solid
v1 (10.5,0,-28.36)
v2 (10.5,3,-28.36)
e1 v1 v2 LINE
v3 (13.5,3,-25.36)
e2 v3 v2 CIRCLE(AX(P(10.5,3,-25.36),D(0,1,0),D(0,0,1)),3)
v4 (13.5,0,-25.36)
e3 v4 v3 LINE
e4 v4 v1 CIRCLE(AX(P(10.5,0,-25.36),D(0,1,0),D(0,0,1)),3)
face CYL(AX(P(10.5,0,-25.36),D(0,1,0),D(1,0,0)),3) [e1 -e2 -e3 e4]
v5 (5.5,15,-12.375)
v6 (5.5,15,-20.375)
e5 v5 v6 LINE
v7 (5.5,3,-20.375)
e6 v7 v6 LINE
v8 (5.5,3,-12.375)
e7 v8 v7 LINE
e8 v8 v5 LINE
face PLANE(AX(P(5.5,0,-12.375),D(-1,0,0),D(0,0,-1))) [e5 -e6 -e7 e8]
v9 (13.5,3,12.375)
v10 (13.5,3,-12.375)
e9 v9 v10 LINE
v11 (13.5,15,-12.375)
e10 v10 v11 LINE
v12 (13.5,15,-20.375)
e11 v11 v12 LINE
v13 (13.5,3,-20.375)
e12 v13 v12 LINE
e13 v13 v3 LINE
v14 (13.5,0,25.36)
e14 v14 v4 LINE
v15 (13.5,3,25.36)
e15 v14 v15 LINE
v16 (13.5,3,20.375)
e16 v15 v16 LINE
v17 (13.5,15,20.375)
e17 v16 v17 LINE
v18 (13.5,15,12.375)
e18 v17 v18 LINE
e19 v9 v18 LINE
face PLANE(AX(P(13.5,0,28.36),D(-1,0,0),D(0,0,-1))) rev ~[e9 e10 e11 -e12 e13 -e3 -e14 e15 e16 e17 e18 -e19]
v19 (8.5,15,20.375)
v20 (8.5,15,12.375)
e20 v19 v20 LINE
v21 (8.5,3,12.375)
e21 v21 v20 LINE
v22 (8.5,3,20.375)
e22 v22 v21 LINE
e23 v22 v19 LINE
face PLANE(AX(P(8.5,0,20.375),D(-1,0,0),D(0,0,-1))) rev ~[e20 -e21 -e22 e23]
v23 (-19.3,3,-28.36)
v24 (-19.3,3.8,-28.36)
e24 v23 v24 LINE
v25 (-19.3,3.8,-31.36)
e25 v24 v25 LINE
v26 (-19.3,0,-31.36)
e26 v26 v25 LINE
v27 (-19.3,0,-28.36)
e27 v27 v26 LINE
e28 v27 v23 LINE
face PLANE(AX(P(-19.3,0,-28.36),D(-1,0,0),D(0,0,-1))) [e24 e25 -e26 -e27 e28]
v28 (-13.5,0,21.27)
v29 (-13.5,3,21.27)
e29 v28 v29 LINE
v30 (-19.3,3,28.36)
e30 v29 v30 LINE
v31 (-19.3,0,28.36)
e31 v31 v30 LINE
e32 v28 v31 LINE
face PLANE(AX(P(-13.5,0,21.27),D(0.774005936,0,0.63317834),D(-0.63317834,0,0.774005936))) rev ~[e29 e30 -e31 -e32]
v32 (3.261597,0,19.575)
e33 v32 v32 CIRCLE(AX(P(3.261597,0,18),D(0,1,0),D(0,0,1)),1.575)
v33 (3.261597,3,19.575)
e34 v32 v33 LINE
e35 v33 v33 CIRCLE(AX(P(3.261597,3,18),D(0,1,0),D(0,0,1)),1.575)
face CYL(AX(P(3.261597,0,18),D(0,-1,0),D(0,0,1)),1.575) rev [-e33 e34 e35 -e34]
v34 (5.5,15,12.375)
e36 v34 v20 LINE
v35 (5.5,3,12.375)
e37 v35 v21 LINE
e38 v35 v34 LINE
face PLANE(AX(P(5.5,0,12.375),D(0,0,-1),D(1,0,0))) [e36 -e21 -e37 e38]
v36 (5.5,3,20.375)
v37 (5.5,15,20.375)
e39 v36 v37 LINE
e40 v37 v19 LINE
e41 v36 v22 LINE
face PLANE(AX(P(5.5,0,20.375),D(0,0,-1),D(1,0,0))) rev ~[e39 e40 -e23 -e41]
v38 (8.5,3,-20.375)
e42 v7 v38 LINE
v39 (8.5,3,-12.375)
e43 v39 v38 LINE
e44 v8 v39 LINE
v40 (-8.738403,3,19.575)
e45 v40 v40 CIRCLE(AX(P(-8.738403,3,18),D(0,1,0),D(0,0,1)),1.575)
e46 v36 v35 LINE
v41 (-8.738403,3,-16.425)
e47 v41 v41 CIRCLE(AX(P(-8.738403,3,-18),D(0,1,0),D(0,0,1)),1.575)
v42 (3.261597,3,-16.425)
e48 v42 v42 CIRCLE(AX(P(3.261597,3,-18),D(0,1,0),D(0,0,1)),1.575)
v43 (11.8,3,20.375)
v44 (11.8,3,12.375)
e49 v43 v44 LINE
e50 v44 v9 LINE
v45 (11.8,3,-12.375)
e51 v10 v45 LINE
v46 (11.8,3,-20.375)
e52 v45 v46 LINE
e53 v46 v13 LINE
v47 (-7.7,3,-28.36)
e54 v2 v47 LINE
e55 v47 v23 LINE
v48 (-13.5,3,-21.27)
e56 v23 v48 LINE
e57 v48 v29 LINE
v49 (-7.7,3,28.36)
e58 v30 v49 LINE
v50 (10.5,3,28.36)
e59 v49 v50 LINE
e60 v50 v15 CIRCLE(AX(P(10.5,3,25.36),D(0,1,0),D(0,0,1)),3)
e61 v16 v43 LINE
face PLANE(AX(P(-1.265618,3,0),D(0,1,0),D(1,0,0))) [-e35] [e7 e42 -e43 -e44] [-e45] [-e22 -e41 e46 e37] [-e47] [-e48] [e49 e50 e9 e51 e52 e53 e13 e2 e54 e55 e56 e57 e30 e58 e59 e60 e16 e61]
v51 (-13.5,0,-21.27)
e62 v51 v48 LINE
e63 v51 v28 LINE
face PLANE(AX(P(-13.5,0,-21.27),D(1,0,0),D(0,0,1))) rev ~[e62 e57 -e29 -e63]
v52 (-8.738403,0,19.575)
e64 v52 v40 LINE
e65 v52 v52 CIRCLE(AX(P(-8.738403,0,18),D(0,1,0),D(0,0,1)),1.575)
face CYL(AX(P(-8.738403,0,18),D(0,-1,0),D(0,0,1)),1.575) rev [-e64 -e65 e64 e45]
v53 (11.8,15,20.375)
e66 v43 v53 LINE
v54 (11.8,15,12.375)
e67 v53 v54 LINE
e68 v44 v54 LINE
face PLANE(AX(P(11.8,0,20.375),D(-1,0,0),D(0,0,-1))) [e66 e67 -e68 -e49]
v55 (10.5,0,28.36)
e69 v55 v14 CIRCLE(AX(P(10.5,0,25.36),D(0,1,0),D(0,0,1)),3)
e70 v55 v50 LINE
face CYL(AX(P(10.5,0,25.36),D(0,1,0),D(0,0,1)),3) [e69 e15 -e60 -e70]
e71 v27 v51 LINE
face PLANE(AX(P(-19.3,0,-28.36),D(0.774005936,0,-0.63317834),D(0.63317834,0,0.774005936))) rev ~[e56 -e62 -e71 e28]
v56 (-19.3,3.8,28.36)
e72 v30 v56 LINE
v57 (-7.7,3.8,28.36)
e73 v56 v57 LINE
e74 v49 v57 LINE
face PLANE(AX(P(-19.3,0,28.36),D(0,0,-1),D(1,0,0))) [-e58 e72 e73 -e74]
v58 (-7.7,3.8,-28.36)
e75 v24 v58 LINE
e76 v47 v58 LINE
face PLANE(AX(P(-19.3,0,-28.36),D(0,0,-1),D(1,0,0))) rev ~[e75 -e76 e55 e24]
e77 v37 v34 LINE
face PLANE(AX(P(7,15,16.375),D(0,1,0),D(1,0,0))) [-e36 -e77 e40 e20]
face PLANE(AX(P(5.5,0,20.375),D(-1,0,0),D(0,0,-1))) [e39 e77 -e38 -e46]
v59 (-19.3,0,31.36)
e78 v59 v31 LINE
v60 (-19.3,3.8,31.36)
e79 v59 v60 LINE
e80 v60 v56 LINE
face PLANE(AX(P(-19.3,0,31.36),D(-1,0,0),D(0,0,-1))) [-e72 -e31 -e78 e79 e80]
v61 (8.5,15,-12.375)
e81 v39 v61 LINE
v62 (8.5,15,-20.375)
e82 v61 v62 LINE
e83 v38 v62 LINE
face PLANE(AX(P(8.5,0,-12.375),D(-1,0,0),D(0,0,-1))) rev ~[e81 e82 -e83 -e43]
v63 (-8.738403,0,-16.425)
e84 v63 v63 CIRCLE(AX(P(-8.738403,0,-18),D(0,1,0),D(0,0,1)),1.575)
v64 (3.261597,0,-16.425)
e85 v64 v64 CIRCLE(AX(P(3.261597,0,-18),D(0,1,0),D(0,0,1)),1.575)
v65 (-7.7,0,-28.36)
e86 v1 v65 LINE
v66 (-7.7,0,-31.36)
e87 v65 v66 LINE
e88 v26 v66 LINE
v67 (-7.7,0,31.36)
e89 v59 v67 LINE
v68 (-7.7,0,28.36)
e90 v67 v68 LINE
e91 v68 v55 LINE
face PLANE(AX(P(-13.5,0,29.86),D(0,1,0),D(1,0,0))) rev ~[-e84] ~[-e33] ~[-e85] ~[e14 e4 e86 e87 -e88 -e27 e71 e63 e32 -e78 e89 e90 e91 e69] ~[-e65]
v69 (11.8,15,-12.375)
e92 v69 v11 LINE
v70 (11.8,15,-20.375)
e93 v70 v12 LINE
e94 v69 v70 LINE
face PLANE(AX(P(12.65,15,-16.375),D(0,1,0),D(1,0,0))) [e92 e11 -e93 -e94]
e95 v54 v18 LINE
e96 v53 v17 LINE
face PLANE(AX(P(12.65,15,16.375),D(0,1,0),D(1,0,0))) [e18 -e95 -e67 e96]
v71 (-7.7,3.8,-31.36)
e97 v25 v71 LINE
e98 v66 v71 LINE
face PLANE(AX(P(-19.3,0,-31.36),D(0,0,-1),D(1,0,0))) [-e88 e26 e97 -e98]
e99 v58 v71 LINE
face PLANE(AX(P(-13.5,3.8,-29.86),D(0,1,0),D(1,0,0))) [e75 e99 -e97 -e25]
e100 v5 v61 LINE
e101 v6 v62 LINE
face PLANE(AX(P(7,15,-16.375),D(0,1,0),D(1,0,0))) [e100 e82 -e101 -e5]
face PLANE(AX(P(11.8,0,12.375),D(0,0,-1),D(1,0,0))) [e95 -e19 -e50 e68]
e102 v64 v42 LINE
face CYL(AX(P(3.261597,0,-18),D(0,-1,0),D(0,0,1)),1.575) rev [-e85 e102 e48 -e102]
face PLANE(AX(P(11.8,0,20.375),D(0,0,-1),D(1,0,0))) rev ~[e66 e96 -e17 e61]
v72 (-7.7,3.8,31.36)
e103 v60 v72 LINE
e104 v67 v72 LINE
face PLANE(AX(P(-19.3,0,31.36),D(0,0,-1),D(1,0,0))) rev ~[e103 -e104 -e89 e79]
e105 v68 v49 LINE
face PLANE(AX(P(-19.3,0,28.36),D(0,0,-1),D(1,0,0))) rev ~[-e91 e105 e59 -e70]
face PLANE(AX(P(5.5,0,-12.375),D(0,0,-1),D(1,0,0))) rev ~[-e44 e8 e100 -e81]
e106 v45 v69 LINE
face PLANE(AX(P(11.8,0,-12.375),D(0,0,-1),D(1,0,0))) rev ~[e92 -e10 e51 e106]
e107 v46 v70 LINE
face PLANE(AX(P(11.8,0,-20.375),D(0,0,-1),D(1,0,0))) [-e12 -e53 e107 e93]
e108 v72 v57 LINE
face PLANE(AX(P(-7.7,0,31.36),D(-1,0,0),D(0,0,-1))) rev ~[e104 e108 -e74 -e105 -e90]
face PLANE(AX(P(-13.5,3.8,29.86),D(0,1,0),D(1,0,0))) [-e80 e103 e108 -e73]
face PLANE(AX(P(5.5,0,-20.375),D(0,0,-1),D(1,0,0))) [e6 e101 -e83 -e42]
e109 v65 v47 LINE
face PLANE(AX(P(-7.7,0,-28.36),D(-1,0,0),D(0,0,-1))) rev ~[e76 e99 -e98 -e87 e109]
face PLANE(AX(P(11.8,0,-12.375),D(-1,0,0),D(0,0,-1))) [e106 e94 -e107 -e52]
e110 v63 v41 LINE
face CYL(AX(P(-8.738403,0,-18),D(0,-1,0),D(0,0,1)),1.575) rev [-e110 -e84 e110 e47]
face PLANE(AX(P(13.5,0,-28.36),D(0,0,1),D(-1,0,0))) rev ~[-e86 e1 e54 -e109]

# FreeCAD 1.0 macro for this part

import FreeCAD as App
import Part
import Sketcher

V = App.Vector


def edges_at(feature, points):
    """Names of the edges that pass closest to the given points."""
    edges = feature.Shape.Edges
    near = lambda p: min(range(len(edges)), key=lambda i: edges[i].distToShape(Part.Vertex(*p))[0])
    return sorted({f"Edge{near(p) + 1}" for p in points})

doc = App.newDocument("Part")
body = doc.addObject("PartDesign::Body", "Body")

# Sketch on XZ plane
sketch1 = body.newObject("Sketcher::SketchObject", "Sketch")
sketch1.AttachmentSupport = (doc.getObject("XZ_Plane"), [""])
sketch1.MapMode = "FlatFace"
sketch1.addGeometry(Part.LineSegment(V(-13.5, 21.27, 0), V(-19.3, 28.36, 0)), False)
sketch1.addGeometry(Part.LineSegment(V(-19.3, 28.36, 0), V(13.5, 28.36, 0)), False)
sketch1.addGeometry(Part.LineSegment(V(13.5, 28.36, 0), V(13.5, 20.375, 0)), False)
sketch1.addGeometry(Part.LineSegment(V(13.5, 20.375, 0), V(11.8, 20.375, 0)), False)
sketch1.addGeometry(Part.LineSegment(V(11.8, 20.375, 0), V(11.8, 12.375, 0)), False)
sketch1.addGeometry(Part.LineSegment(V(11.8, 12.375, 0), V(13.5, 12.375, 0)), False)
sketch1.addGeometry(Part.LineSegment(V(13.5, 12.375, 0), V(13.5, -12.375, 0)), False)
sketch1.addGeometry(Part.LineSegment(V(13.5, -12.375, 0), V(11.8, -12.375, 0)), False)
sketch1.addGeometry(Part.LineSegment(V(11.8, -12.375, 0), V(11.8, -20.375, 0)), False)
sketch1.addGeometry(Part.LineSegment(V(11.8, -20.375, 0), V(13.5, -20.375, 0)), False)
sketch1.addGeometry(Part.LineSegment(V(13.5, -20.375, 0), V(13.5, -28.36, 0)), False)
sketch1.addGeometry(Part.LineSegment(V(13.5, -28.36, 0), V(-19.3, -28.36, 0)), False)
sketch1.addGeometry(Part.LineSegment(V(-19.3, -28.36, 0), V(-13.5, -21.27, 0)), False)
sketch1.addGeometry(Part.LineSegment(V(-13.5, -21.27, 0), V(-13.5, 21.27, 0)), False)
sketch1.addGeometry(Part.Circle(V(-8.738403, 18, 0), V(0, 0, 1), 1.575), False)
sketch1.addGeometry(Part.Circle(V(3.261597, 18, 0), V(0, 0, 1), 1.575), False)
sketch1.addGeometry(Part.LineSegment(V(8.5, 20.375, 0), V(5.5, 20.375, 0)), False)
sketch1.addGeometry(Part.LineSegment(V(5.5, 20.375, 0), V(5.5, 12.375, 0)), False)
sketch1.addGeometry(Part.LineSegment(V(5.5, 12.375, 0), V(8.5, 12.375, 0)), False)
sketch1.addGeometry(Part.LineSegment(V(8.5, 12.375, 0), V(8.5, 20.375, 0)), False)
sketch1.addGeometry(Part.Circle(V(-8.738403, -18, 0), V(0, 0, 1), 1.575), False)
sketch1.addGeometry(Part.Circle(V(3.261597, -18, 0), V(0, 0, 1), 1.575), False)
sketch1.addGeometry(Part.LineSegment(V(8.5, -12.375, 0), V(5.5, -12.375, 0)), False)
sketch1.addGeometry(Part.LineSegment(V(5.5, -12.375, 0), V(5.5, -20.375, 0)), False)
sketch1.addGeometry(Part.LineSegment(V(5.5, -20.375, 0), V(8.5, -20.375, 0)), False)
sketch1.addGeometry(Part.LineSegment(V(8.5, -20.375, 0), V(8.5, -12.375, 0)), False)
sketch1.addConstraint(Sketcher.Constraint("Coincident", 0, 2, 1, 1))
sketch1.addConstraint(Sketcher.Constraint("Coincident", 1, 2, 2, 1))
sketch1.addConstraint(Sketcher.Constraint("Coincident", 2, 2, 3, 1))
sketch1.addConstraint(Sketcher.Constraint("Coincident", 3, 2, 4, 1))
sketch1.addConstraint(Sketcher.Constraint("Coincident", 4, 2, 5, 1))
sketch1.addConstraint(Sketcher.Constraint("Coincident", 5, 2, 6, 1))
sketch1.addConstraint(Sketcher.Constraint("Coincident", 6, 2, 7, 1))
sketch1.addConstraint(Sketcher.Constraint("Coincident", 7, 2, 8, 1))
sketch1.addConstraint(Sketcher.Constraint("Coincident", 8, 2, 9, 1))
sketch1.addConstraint(Sketcher.Constraint("Coincident", 9, 2, 10, 1))
sketch1.addConstraint(Sketcher.Constraint("Coincident", 10, 2, 11, 1))
sketch1.addConstraint(Sketcher.Constraint("Coincident", 11, 2, 12, 1))
sketch1.addConstraint(Sketcher.Constraint("Coincident", 12, 2, 13, 1))
sketch1.addConstraint(Sketcher.Constraint("Coincident", 13, 2, 0, 1))
sketch1.addConstraint(Sketcher.Constraint("Coincident", 16, 2, 17, 1))
sketch1.addConstraint(Sketcher.Constraint("Coincident", 17, 2, 18, 1))
sketch1.addConstraint(Sketcher.Constraint("Coincident", 18, 2, 19, 1))
sketch1.addConstraint(Sketcher.Constraint("Coincident", 19, 2, 16, 1))
sketch1.addConstraint(Sketcher.Constraint("Coincident", 22, 2, 23, 1))
sketch1.addConstraint(Sketcher.Constraint("Coincident", 23, 2, 24, 1))
sketch1.addConstraint(Sketcher.Constraint("Coincident", 24, 2, 25, 1))
sketch1.addConstraint(Sketcher.Constraint("Coincident", 25, 2, 22, 1))
sketch1.addConstraint(Sketcher.Constraint("Horizontal", 1))
sketch1.addConstraint(Sketcher.Constraint("Vertical", 2))
sketch1.addConstraint(Sketcher.Constraint("Horizontal", 3))
sketch1.addConstraint(Sketcher.Constraint("Vertical", 4))
sketch1.addConstraint(Sketcher.Constraint("Horizontal", 5))
sketch1.addConstraint(Sketcher.Constraint("Vertical", 6))
sketch1.addConstraint(Sketcher.Constraint("Horizontal", 7))
sketch1.addConstraint(Sketcher.Constraint("Vertical", 8))
sketch1.addConstraint(Sketcher.Constraint("Horizontal", 9))
sketch1.addConstraint(Sketcher.Constraint("Vertical", 10))
sketch1.addConstraint(Sketcher.Constraint("Horizontal", 11))
sketch1.addConstraint(Sketcher.Constraint("Vertical", 13))
sketch1.addConstraint(Sketcher.Constraint("Horizontal", 16))
sketch1.addConstraint(Sketcher.Constraint("Vertical", 17))
sketch1.addConstraint(Sketcher.Constraint("Horizontal", 18))
sketch1.addConstraint(Sketcher.Constraint("Vertical", 19))
sketch1.addConstraint(Sketcher.Constraint("Horizontal", 22))
sketch1.addConstraint(Sketcher.Constraint("Vertical", 23))
sketch1.addConstraint(Sketcher.Constraint("Horizontal", 24))
sketch1.addConstraint(Sketcher.Constraint("Vertical", 25))
sketch1.addConstraint(Sketcher.Constraint("Equal", 14, 15))
sketch1.addConstraint(Sketcher.Constraint("Equal", 15, 20))
sketch1.addConstraint(Sketcher.Constraint("Equal", 20, 21))
sketch1.addConstraint(Sketcher.Constraint("Symmetric", 14, 3, 20, 3, -1))
sketch1.addConstraint(Sketcher.Constraint("Symmetric", 15, 3, 21, 3, -1))
sketch1.addConstraint(Sketcher.Constraint("Symmetric", 4, 2, 7, 2, -1))
sketch1.addConstraint(Sketcher.Constraint("Symmetric", 2, 2, 9, 2, -1))
sketch1.addConstraint(Sketcher.Constraint("Symmetric", 0, 2, 11, 2, -1))
sketch1.addConstraint(Sketcher.Constraint("Symmetric", 17, 2, 22, 2, -1))
sketch1.addConstraint(Sketcher.Constraint("Symmetric", 19, 2, 24, 2, -1))
sketch1.addConstraint(Sketcher.Constraint("Horizontal", 14, 3, 15, 3))
sketch1.addConstraint(Sketcher.Constraint("Horizontal", 3, 2, 16, 2))
sketch1.addConstraint(Sketcher.Constraint("Horizontal", 5, 2, 17, 2))
sketch1.addConstraint(Sketcher.Constraint("Vertical", 2, 2, 5, 2))
sketch1.addConstraint(Sketcher.Constraint("Equal", 0, 12))
sketch1.addConstraint(Sketcher.Constraint("Diameter", 14, 3.15))
sketch1.addConstraint(Sketcher.Constraint("DistanceX", 16, 2, 16, 1, 3.0))
sketch1.addConstraint(Sketcher.Constraint("DistanceY", 4, 2, 4, 1, 8.0))
sketch1.addConstraint(Sketcher.Constraint("DistanceX", 1, 1, 1, 2, 32.8))
sketch1.addConstraint(Sketcher.Constraint("DistanceX", 3, 2, 3, 1, 1.7))
sketch1.addConstraint(Sketcher.Constraint("DistanceY", -1, 1, 14, 3, 18.0))
sketch1.addConstraint(Sketcher.Constraint("DistanceX", 14, 3, 15, 3, 12.0))
sketch1.addConstraint(Sketcher.Constraint("DistanceX", 16, 2, 2, 2, 8.0))
sketch1.addConstraint(Sketcher.Constraint("DistanceY", 6, 2, 6, 1, 24.75))
sketch1.addConstraint(Sketcher.Constraint("DistanceY", 13, 1, 13, 2, 42.54))
sketch1.addConstraint(Sketcher.Constraint("DistanceX", 0, 2, -1, 1, 19.3))
sketch1.addConstraint(Sketcher.Constraint("DistanceX", 12, 2, -1, 1, 13.5))
sketch1.addConstraint(Sketcher.Constraint("DistanceY", 2, 2, 2, 1, 7.985))
sketch1.addConstraint(Sketcher.Constraint("DistanceX", 14, 3, -1, 1, 8.738403))
pad1 = body.newObject("PartDesign::Pad", "Pad")
pad1.Profile = sketch1
pad1.Length = 3
pad1.Reversed = True

# Sketch on XZ plane
sketch2 = body.newObject("Sketcher::SketchObject", "Sketch001")
sketch2.AttachmentSupport = (doc.getObject("XZ_Plane"), [""])
sketch2.MapMode = "FlatFace"
sketch2.addGeometry(Part.LineSegment(V(5.5, -20.375, 0), V(5.5, -12.375, 0)), False)
sketch2.addGeometry(Part.LineSegment(V(5.5, -12.375, 0), V(8.5, -12.375, 0)), False)
sketch2.addGeometry(Part.LineSegment(V(8.5, -12.375, 0), V(8.5, -20.375, 0)), False)
sketch2.addGeometry(Part.LineSegment(V(8.5, -20.375, 0), V(5.5, -20.375, 0)), False)
sketch2.addGeometry(Part.LineSegment(V(5.5, 12.375, 0), V(5.5, 20.375, 0)), False)
sketch2.addGeometry(Part.LineSegment(V(5.5, 20.375, 0), V(8.5, 20.375, 0)), False)
sketch2.addGeometry(Part.LineSegment(V(8.5, 20.375, 0), V(8.5, 12.375, 0)), False)
sketch2.addGeometry(Part.LineSegment(V(8.5, 12.375, 0), V(5.5, 12.375, 0)), False)
sketch2.addGeometry(Part.LineSegment(V(11.8, 12.375, 0), V(11.8, 20.375, 0)), False)
sketch2.addGeometry(Part.LineSegment(V(11.8, 20.375, 0), V(13.5, 20.375, 0)), False)
sketch2.addGeometry(Part.LineSegment(V(13.5, 20.375, 0), V(13.5, 12.375, 0)), False)
sketch2.addGeometry(Part.LineSegment(V(13.5, 12.375, 0), V(11.8, 12.375, 0)), False)
sketch2.addGeometry(Part.LineSegment(V(11.8, -20.375, 0), V(11.8, -12.375, 0)), False)
sketch2.addGeometry(Part.LineSegment(V(11.8, -12.375, 0), V(13.5, -12.375, 0)), False)
sketch2.addGeometry(Part.LineSegment(V(13.5, -12.375, 0), V(13.5, -20.375, 0)), False)
sketch2.addGeometry(Part.LineSegment(V(13.5, -20.375, 0), V(11.8, -20.375, 0)), False)
sketch2.addConstraint(Sketcher.Constraint("Coincident", 0, 2, 1, 1))
sketch2.addConstraint(Sketcher.Constraint("Coincident", 1, 2, 2, 1))
sketch2.addConstraint(Sketcher.Constraint("Coincident", 2, 2, 3, 1))
sketch2.addConstraint(Sketcher.Constraint("Coincident", 3, 2, 0, 1))
sketch2.addConstraint(Sketcher.Constraint("Coincident", 4, 2, 5, 1))
sketch2.addConstraint(Sketcher.Constraint("Coincident", 5, 2, 6, 1))
sketch2.addConstraint(Sketcher.Constraint("Coincident", 6, 2, 7, 1))
sketch2.addConstraint(Sketcher.Constraint("Coincident", 7, 2, 4, 1))
sketch2.addConstraint(Sketcher.Constraint("Coincident", 8, 2, 9, 1))
sketch2.addConstraint(Sketcher.Constraint("Coincident", 9, 2, 10, 1))
sketch2.addConstraint(Sketcher.Constraint("Coincident", 10, 2, 11, 1))
sketch2.addConstraint(Sketcher.Constraint("Coincident", 11, 2, 8, 1))
sketch2.addConstraint(Sketcher.Constraint("Coincident", 12, 2, 13, 1))
sketch2.addConstraint(Sketcher.Constraint("Coincident", 13, 2, 14, 1))
sketch2.addConstraint(Sketcher.Constraint("Coincident", 14, 2, 15, 1))
sketch2.addConstraint(Sketcher.Constraint("Coincident", 15, 2, 12, 1))
sketch2.addConstraint(Sketcher.Constraint("Vertical", 0))
sketch2.addConstraint(Sketcher.Constraint("Horizontal", 1))
sketch2.addConstraint(Sketcher.Constraint("Vertical", 2))
sketch2.addConstraint(Sketcher.Constraint("Horizontal", 3))
sketch2.addConstraint(Sketcher.Constraint("Vertical", 4))
sketch2.addConstraint(Sketcher.Constraint("Horizontal", 5))
sketch2.addConstraint(Sketcher.Constraint("Vertical", 6))
sketch2.addConstraint(Sketcher.Constraint("Horizontal", 7))
sketch2.addConstraint(Sketcher.Constraint("Vertical", 8))
sketch2.addConstraint(Sketcher.Constraint("Horizontal", 9))
sketch2.addConstraint(Sketcher.Constraint("Vertical", 10))
sketch2.addConstraint(Sketcher.Constraint("Horizontal", 11))
sketch2.addConstraint(Sketcher.Constraint("Vertical", 12))
sketch2.addConstraint(Sketcher.Constraint("Horizontal", 13))
sketch2.addConstraint(Sketcher.Constraint("Vertical", 14))
sketch2.addConstraint(Sketcher.Constraint("Horizontal", 15))
sketch2.addConstraint(Sketcher.Constraint("Symmetric", 3, 2, 4, 2, -1))
sketch2.addConstraint(Sketcher.Constraint("Symmetric", 1, 2, 6, 2, -1))
sketch2.addConstraint(Sketcher.Constraint("Symmetric", 11, 2, 12, 2, -1))
sketch2.addConstraint(Sketcher.Constraint("Symmetric", 9, 2, 14, 2, -1))
sketch2.addConstraint(Sketcher.Constraint("Horizontal", 5, 2, 8, 2))
sketch2.addConstraint(Sketcher.Constraint("Horizontal", 7, 2, 10, 2))
sketch2.addConstraint(Sketcher.Constraint("DistanceX", 1, 1, 1, 2, 3.0))
sketch2.addConstraint(Sketcher.Constraint("DistanceY", 0, 1, 0, 2, 8.0))
sketch2.addConstraint(Sketcher.Constraint("DistanceX", 9, 1, 9, 2, 1.7))
sketch2.addConstraint(Sketcher.Constraint("DistanceX", 5, 2, 9, 2, 5.0))
sketch2.addConstraint(Sketcher.Constraint("DistanceX", -1, 1, 0, 2, 5.5))
sketch2.addConstraint(Sketcher.Constraint("DistanceY", 0, 2, 4, 2, 32.75))
pad2 = body.newObject("PartDesign::Pad", "Pad001")
pad2.Profile = sketch2
pad2.Length = 15
pad2.Reversed = True

# Sketch on XZ plane
sketch3 = body.newObject("Sketcher::SketchObject", "Sketch002")
sketch3.AttachmentSupport = (doc.getObject("XZ_Plane"), [""])
sketch3.MapMode = "FlatFace"
sketch3.addGeometry(Part.LineSegment(V(-19.3, 28.36, 0), V(-19.3, 31.36, 0)), False)
sketch3.addGeometry(Part.LineSegment(V(-19.3, 31.36, 0), V(-7.7, 31.36, 0)), False)
sketch3.addGeometry(Part.LineSegment(V(-7.7, 31.36, 0), V(-7.7, 28.36, 0)), False)
sketch3.addGeometry(Part.LineSegment(V(-7.7, 28.36, 0), V(-19.3, 28.36, 0)), False)
sketch3.addGeometry(Part.LineSegment(V(-19.3, -31.36, 0), V(-19.3, -28.36, 0)), False)
sketch3.addGeometry(Part.LineSegment(V(-19.3, -28.36, 0), V(-7.7, -28.36, 0)), False)
sketch3.addGeometry(Part.LineSegment(V(-7.7, -28.36, 0), V(-7.7, -31.36, 0)), False)
sketch3.addGeometry(Part.LineSegment(V(-7.7, -31.36, 0), V(-19.3, -31.36, 0)), False)
sketch3.addConstraint(Sketcher.Constraint("Coincident", 0, 2, 1, 1))
sketch3.addConstraint(Sketcher.Constraint("Coincident", 1, 2, 2, 1))
sketch3.addConstraint(Sketcher.Constraint("Coincident", 2, 2, 3, 1))
sketch3.addConstraint(Sketcher.Constraint("Coincident", 3, 2, 0, 1))
sketch3.addConstraint(Sketcher.Constraint("Coincident", 4, 2, 5, 1))
sketch3.addConstraint(Sketcher.Constraint("Coincident", 5, 2, 6, 1))
sketch3.addConstraint(Sketcher.Constraint("Coincident", 6, 2, 7, 1))
sketch3.addConstraint(Sketcher.Constraint("Coincident", 7, 2, 4, 1))
sketch3.addConstraint(Sketcher.Constraint("Vertical", 0))
sketch3.addConstraint(Sketcher.Constraint("Horizontal", 1))
sketch3.addConstraint(Sketcher.Constraint("Vertical", 2))
sketch3.addConstraint(Sketcher.Constraint("Horizontal", 3))
sketch3.addConstraint(Sketcher.Constraint("Vertical", 4))
sketch3.addConstraint(Sketcher.Constraint("Horizontal", 5))
sketch3.addConstraint(Sketcher.Constraint("Vertical", 6))
sketch3.addConstraint(Sketcher.Constraint("Horizontal", 7))
sketch3.addConstraint(Sketcher.Constraint("Symmetric", 3, 2, 4, 2, -1))
sketch3.addConstraint(Sketcher.Constraint("Symmetric", 1, 2, 6, 2, -1))
sketch3.addConstraint(Sketcher.Constraint("DistanceY", 0, 1, 0, 2, 3.0))
sketch3.addConstraint(Sketcher.Constraint("DistanceX", 1, 1, 1, 2, 11.6))
sketch3.addConstraint(Sketcher.Constraint("DistanceX", 0, 2, -1, 1, 19.3))
sketch3.addConstraint(Sketcher.Constraint("DistanceY", -1, 1, 0, 2, 31.36))
pad3 = body.newObject("PartDesign::Pad", "Pad002")
pad3.Profile = sketch3
pad3.Length = 3.8
pad3.Reversed = True
doc.recompute()

fillet = body.newObject("PartDesign::Fillet", "Fillet")
fillet.Base = (pad3, edges_at(pad3, [(13.5, 1.5, 28.36), (13.5, 1.5, -28.36)]))
fillet.Radius = 3

doc.recompute()
